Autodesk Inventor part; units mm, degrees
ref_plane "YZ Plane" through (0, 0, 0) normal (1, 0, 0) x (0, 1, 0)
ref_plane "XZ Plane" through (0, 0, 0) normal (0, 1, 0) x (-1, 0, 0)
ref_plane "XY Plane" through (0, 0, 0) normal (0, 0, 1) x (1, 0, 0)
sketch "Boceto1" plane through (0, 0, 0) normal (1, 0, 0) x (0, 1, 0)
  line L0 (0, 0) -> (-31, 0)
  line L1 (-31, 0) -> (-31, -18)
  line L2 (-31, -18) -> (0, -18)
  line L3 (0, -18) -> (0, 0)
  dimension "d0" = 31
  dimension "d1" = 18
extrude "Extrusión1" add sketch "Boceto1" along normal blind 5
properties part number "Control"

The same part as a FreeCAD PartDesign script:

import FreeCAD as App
import Part
import Sketcher

V = App.Vector


def add_polygon(sketch, points):
    """Adds a closed chain of lines whose ends are joined by coincident constraints."""
    first, n = sketch.GeometryCount, len(points)
    for a, b in zip(points, points[1:] + points[:1]):
        sketch.addGeometry(Part.LineSegment(App.Vector(*a, 0), App.Vector(*b, 0)), False)
    for i in range(n):
        sketch.addConstraint(Sketcher.Constraint("Coincident", first + i, 2, first + (i + 1) % n, 1))

doc = App.newDocument("Part")
body = doc.addObject("PartDesign::Body", "Body")

# Sketch on YZ plane
sketch1 = body.newObject("Sketcher::SketchObject", "Sketch")
sketch1.AttachmentSupport = (doc.getObject("YZ_Plane"), [""])
sketch1.MapMode = "FlatFace"
add_polygon(sketch1, [(0, -18), (0, 0), (-31, 0), (-31, -18)])  # lines 0-3
sketch1.addConstraint([
    Sketcher.Constraint("Vertical", 0),
    Sketcher.Constraint("Horizontal", 1),
    Sketcher.Constraint("Vertical", 2),
    Sketcher.Constraint("Horizontal", 3),
    Sketcher.Constraint("Coincident", 0, 2, -1, 1),
    Sketcher.Constraint("DistanceX", 1, 2, 1, 1, 31.0),
    Sketcher.Constraint("DistanceY", 0, 1, 0, 2, 18.0),
])
pad1 = body.newObject("PartDesign::Pad", "Pad")
pad1.Profile = sketch1
pad1.Length = 5

doc.recompute()
